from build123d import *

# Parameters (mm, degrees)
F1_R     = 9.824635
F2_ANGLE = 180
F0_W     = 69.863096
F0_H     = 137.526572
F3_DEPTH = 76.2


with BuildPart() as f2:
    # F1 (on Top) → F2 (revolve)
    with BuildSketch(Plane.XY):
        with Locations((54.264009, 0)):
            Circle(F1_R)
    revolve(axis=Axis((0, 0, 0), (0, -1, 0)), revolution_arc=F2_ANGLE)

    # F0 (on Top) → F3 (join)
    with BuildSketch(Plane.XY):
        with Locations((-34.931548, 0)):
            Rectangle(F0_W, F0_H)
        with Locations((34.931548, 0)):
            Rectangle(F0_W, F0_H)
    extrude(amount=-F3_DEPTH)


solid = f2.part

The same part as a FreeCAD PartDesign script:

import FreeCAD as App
import Part
import Sketcher
from FreeCAD import Vector
Q = App.Units.Quantity


def add_polygon(sketch, points):
    """Adds a closed chain of lines whose ends are joined by coincident constraints."""
    first, n = sketch.GeometryCount, len(points)
    for a, b in zip(points, points[1:] + points[:1]):
        sketch.addGeometry(Part.LineSegment(App.Vector(*a, 0), App.Vector(*b, 0)), False)
    for i in range(n):
        sketch.addConstraint(Sketcher.Constraint("Coincident", first + i, 2, first + (i + 1) % n, 1))

doc = App.newDocument("Part")
body = doc.addObject("PartDesign::Body", "Body")

# Sketch on XY plane
sketch1 = doc.addObject("Sketcher::SketchObject", "Sketch")
body.addObject(sketch1)
sketch1.AttachmentSupport = (doc.XY_Plane, [""])
sketch1.MapMode = "FlatFace"
sketch1.addGeometry(Part.Circle(Vector(54, 0, 0), Vector(0, 0, 1), 10), False)
sketch1.addConstraint([
    Sketcher.Constraint("PointOnObject", 0, 3, -1),
    Sketcher.Constraint("Diameter", 0, 19.64927),
    Sketcher.Constraint("DistanceX", -1, 1, 0, 3, 54.264009),
])
revolution = doc.addObject("PartDesign::Revolution", "Revolution")
body.addObject(revolution)
revolution.Profile = sketch1
revolution.ReferenceAxis = (sketch1, ["V_Axis"])
revolution.Angle = 180
revolution.Reversed = True

# Sketch on XY plane
sketch2 = doc.addObject("Sketcher::SketchObject", "Sketch001")
body.addObject(sketch2)
sketch2.AttachmentSupport = (doc.XY_Plane, [""])
sketch2.MapMode = "FlatFace"
add_polygon(sketch2, [(-70, 69), (-70, -69), (70, -69), (70, 69)])  # lines 0-3
sketch2.addConstraint([
    Sketcher.Constraint("Vertical", 0),
    Sketcher.Constraint("Horizontal", 1),
    Sketcher.Constraint("Vertical", 2),
    Sketcher.Constraint("Horizontal", 3),
    Sketcher.Constraint("Symmetric", 0, 2, 2, 2, -1, 1),
    Sketcher.Constraint("DistanceX", 1, 1, 1, 2, 139.726192),
    Sketcher.Constraint("DistanceY", 0, 2, 0, 1, 137.526572),
])
pad1 = doc.addObject("PartDesign::Pad", "Pad")
body.addObject(pad1)
pad1.Profile = sketch2
pad1.Length = Q("3 in")
pad1.Reversed = True

doc.recompute()
